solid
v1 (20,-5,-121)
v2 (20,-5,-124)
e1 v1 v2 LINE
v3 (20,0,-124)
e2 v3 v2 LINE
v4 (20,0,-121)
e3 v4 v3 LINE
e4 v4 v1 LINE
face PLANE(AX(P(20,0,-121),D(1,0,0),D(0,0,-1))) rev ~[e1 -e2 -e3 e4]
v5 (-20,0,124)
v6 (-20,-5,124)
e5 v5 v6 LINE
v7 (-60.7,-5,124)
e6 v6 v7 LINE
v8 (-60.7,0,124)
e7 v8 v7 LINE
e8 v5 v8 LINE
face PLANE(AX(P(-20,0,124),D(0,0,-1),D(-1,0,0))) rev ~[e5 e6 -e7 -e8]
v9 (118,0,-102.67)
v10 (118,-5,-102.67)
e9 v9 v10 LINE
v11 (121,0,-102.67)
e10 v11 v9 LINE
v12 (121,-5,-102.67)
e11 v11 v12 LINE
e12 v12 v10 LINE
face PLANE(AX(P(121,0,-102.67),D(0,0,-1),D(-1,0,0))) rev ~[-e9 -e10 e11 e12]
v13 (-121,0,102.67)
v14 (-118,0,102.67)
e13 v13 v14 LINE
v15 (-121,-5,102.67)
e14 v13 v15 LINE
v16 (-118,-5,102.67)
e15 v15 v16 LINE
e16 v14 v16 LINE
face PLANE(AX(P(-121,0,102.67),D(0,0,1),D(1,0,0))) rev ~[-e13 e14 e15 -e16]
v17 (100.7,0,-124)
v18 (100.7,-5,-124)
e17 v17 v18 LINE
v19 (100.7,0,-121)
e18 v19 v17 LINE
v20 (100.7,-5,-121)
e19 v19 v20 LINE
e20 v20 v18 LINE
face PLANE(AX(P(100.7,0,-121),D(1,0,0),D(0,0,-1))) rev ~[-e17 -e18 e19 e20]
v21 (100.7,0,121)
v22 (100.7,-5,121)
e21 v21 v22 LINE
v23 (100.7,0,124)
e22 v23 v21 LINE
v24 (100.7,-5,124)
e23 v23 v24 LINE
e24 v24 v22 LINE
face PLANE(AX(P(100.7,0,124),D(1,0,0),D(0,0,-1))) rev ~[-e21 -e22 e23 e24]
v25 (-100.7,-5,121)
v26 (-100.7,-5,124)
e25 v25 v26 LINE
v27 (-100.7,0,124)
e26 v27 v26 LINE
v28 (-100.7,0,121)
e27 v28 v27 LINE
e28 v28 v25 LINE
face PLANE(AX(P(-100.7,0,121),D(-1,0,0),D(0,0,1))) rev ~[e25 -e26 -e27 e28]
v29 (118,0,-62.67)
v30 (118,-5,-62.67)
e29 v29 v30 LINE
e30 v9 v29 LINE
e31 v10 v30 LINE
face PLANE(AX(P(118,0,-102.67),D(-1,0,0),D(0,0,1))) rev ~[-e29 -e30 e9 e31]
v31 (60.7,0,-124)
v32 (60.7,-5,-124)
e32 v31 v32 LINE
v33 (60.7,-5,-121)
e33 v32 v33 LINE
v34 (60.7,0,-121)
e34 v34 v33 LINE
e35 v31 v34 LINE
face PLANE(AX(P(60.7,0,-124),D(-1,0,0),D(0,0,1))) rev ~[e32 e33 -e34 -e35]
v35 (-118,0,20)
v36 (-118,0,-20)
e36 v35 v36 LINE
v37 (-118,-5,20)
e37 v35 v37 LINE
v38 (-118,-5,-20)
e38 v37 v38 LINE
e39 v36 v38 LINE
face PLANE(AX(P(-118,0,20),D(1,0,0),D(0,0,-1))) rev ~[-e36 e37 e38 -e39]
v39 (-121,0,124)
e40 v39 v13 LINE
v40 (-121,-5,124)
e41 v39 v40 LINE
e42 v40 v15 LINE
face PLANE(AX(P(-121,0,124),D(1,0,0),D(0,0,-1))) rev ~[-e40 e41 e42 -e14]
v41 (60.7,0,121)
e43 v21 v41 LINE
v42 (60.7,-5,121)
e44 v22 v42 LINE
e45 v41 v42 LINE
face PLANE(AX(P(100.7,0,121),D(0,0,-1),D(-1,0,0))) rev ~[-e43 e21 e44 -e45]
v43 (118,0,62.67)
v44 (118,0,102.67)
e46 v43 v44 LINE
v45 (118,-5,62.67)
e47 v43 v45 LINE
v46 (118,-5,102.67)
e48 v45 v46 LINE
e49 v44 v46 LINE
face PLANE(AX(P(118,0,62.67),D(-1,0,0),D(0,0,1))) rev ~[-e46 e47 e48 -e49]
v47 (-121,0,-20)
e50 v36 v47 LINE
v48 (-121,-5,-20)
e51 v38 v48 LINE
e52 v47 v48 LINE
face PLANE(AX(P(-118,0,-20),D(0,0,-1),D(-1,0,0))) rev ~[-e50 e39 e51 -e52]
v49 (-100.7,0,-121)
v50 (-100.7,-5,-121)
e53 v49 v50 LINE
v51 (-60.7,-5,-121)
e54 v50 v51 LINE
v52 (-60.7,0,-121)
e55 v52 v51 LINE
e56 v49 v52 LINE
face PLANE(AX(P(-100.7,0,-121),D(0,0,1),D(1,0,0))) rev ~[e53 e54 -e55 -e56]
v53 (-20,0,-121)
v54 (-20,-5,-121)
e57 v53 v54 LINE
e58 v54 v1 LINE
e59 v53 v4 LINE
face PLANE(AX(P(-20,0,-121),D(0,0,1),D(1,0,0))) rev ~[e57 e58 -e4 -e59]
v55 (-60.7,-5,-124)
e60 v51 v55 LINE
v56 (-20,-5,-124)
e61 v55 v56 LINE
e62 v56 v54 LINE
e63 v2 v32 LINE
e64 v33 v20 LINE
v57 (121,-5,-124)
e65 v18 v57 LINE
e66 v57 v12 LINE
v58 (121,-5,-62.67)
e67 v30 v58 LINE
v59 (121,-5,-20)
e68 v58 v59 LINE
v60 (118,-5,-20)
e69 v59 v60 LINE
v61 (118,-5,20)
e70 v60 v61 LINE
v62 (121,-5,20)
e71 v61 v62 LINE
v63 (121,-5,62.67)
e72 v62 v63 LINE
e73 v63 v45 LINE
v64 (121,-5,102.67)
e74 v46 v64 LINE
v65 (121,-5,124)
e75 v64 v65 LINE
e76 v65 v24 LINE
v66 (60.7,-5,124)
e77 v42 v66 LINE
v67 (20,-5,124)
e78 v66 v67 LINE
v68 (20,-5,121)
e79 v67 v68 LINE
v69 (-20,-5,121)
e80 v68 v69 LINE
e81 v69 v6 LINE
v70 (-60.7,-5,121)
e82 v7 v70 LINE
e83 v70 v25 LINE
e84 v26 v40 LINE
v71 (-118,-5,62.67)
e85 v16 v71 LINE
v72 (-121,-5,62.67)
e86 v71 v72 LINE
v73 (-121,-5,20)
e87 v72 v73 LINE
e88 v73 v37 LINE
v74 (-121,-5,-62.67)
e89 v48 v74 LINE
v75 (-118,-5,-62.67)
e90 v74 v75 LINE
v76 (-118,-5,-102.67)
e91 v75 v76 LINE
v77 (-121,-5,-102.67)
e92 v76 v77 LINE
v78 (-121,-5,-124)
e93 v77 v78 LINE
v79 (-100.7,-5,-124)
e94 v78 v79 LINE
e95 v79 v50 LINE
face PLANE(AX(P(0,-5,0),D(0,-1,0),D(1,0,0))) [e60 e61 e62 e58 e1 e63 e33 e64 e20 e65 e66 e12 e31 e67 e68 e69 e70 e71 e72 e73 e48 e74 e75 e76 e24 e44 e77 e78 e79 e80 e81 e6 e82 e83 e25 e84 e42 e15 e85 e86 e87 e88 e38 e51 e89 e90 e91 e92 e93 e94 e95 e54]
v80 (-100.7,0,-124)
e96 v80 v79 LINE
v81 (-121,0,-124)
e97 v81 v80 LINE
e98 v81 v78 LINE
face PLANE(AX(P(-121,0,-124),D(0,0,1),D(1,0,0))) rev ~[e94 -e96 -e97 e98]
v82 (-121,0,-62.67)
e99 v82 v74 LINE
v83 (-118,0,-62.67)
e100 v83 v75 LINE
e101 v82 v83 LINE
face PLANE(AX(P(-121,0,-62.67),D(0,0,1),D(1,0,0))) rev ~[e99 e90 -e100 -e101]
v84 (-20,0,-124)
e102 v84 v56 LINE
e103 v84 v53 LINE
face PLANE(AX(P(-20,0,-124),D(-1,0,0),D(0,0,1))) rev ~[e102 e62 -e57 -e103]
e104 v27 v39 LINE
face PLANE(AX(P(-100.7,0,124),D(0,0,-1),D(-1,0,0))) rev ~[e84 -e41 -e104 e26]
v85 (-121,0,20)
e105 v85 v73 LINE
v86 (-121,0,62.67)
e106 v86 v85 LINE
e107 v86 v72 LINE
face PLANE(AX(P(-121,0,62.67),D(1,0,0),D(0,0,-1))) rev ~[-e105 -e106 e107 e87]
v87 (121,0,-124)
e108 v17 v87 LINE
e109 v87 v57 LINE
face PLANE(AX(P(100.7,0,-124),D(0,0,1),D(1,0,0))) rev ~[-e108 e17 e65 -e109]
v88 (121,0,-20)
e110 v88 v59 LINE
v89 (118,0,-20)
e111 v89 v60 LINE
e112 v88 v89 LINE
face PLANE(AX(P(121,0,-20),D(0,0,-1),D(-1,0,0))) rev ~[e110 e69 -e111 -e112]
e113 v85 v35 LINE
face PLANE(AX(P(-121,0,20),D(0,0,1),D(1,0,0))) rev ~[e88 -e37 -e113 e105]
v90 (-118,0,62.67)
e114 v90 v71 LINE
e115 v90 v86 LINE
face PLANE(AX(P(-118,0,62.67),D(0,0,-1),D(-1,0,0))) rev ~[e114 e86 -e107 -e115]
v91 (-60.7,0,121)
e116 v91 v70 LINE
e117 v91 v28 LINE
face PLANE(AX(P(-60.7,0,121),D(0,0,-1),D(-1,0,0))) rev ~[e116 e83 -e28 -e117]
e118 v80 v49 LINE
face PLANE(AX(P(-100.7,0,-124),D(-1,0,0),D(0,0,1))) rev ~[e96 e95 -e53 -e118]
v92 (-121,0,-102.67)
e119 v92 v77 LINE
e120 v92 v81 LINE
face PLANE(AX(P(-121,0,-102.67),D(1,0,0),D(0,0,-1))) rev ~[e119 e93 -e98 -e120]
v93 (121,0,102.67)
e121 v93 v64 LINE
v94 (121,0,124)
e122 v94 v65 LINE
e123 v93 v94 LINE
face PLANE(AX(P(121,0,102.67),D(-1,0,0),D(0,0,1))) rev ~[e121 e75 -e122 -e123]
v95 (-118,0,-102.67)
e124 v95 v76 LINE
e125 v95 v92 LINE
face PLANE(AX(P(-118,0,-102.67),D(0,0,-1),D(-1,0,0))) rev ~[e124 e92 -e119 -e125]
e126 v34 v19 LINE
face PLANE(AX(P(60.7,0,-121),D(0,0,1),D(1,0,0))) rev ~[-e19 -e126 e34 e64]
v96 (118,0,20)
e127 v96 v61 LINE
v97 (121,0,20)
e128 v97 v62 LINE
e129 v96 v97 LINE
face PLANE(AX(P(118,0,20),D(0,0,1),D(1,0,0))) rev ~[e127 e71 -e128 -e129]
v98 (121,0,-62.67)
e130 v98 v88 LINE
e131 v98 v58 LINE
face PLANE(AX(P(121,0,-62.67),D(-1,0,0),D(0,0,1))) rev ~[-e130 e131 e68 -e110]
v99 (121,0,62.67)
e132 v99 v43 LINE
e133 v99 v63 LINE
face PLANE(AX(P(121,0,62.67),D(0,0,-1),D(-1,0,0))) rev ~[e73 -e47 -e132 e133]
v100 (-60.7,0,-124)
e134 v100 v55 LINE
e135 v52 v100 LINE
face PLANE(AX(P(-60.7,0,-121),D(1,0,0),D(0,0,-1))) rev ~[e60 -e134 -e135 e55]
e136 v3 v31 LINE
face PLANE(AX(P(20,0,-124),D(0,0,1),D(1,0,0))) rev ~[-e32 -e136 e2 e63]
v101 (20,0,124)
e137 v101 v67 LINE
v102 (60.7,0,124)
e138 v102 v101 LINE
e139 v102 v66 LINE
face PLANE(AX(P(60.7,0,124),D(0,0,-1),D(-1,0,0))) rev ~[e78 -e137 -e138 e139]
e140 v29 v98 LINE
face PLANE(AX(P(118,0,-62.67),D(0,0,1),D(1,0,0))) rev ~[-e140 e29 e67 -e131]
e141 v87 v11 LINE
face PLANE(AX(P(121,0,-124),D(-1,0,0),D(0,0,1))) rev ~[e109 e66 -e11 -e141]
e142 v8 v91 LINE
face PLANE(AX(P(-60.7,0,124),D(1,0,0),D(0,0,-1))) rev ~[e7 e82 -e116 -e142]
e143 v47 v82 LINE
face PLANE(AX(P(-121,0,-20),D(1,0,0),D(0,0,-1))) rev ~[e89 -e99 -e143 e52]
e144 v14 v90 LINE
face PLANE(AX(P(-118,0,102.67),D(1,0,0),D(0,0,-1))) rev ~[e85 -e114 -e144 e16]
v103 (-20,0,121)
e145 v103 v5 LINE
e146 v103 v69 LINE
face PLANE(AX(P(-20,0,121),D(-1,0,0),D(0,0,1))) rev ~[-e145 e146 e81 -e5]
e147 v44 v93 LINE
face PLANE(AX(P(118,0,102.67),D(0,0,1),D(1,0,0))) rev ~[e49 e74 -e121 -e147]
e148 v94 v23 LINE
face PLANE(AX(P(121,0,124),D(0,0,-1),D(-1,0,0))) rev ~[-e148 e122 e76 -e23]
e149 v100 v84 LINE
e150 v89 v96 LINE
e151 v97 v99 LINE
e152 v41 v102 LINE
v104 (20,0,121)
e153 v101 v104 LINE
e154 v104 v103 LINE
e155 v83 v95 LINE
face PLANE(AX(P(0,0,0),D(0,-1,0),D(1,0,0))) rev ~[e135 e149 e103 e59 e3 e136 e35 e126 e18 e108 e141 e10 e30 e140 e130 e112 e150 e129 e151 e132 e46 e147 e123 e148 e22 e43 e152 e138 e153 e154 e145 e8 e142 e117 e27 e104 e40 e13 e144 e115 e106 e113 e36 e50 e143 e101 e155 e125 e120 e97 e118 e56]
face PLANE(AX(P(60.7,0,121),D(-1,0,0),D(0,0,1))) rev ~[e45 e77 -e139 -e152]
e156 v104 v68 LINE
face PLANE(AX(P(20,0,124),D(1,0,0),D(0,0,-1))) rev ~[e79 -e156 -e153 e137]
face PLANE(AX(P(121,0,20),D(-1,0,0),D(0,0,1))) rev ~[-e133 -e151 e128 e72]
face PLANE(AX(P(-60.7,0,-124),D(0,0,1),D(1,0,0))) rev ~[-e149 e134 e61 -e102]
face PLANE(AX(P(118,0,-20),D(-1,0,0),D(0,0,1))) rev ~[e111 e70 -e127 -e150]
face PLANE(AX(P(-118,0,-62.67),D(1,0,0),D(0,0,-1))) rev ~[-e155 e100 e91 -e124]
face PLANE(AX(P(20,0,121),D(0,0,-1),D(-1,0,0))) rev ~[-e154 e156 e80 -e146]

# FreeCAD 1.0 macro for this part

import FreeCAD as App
import Part
import Sketcher

V = App.Vector

doc = App.newDocument("Part")
body = doc.addObject("PartDesign::Body", "Body")

# Sketch on XZ plane
sketch1 = doc.addObject("Sketcher::SketchObject", "Sketch")
body.addObject(sketch1)
sketch1.AttachmentSupport = (doc.XZ_Plane, [""])
sketch1.MapMode = "FlatFace"
sketch1.addGeometry([
    Part.LineSegment(V(100.7, -124, 0), V(121, -124, 0)),  # 0
    Part.LineSegment(V(121, -124, 0), V(121, -102.67, 0)),  # 1
    Part.LineSegment(V(121, -102.67, 0), V(118, -102.67, 0)),  # 2
    Part.LineSegment(V(118, -102.67, 0), V(118, -62.67, 0)),  # 3
    Part.LineSegment(V(118, -62.67, 0), V(121, -62.67, 0)),  # 4
    Part.LineSegment(V(121, -62.67, 0), V(121, -20, 0)),  # 5
    Part.LineSegment(V(121, -20, 0), V(118, -20, 0)),  # 6
    Part.LineSegment(V(118, -20, 0), V(118, 20, 0)),  # 7
    Part.LineSegment(V(118, 20, 0), V(121, 20, 0)),  # 8
    Part.LineSegment(V(121, 20, 0), V(121, 62.67, 0)),  # 9
    Part.LineSegment(V(121, 62.67, 0), V(118, 62.67, 0)),  # 10
    Part.LineSegment(V(118, 62.67, 0), V(118, 102.67, 0)),  # 11
    Part.LineSegment(V(118, 102.67, 0), V(121, 102.67, 0)),  # 12
    Part.LineSegment(V(121, 102.67, 0), V(121, 124, 0)),  # 13
    Part.LineSegment(V(121, 124, 0), V(100.7, 124, 0)),  # 14
    Part.LineSegment(V(100.7, 124, 0), V(100.7, 121, 0)),  # 15
    Part.LineSegment(V(100.7, 121, 0), V(60.7, 121, 0)),  # 16
    Part.LineSegment(V(60.7, 121, 0), V(60.7, 124, 0)),  # 17
    Part.LineSegment(V(60.7, 124, 0), V(20, 124, 0)),  # 18
    Part.LineSegment(V(20, 124, 0), V(20, 121, 0)),  # 19
    Part.LineSegment(V(20, 121, 0), V(-20, 121, 0)),  # 20
    Part.LineSegment(V(-20, 121, 0), V(-20, 124, 0)),  # 21
    Part.LineSegment(V(-20, 124, 0), V(-60.7, 124, 0)),  # 22
    Part.LineSegment(V(-60.7, 124, 0), V(-60.7, 121, 0)),  # 23
    Part.LineSegment(V(-60.7, 121, 0), V(-100.7, 121, 0)),  # 24
    Part.LineSegment(V(-100.7, 121, 0), V(-100.7, 124, 0)),  # 25
    Part.LineSegment(V(-100.7, 124, 0), V(-121, 124, 0)),  # 26
    Part.LineSegment(V(-121, 124, 0), V(-121, 102.67, 0)),  # 27
    Part.LineSegment(V(-121, 102.67, 0), V(-118, 102.67, 0)),  # 28
    Part.LineSegment(V(-118, 102.67, 0), V(-118, 62.67, 0)),  # 29
    Part.LineSegment(V(-118, 62.67, 0), V(-121, 62.67, 0)),  # 30
    Part.LineSegment(V(-121, 62.67, 0), V(-121, 20, 0)),  # 31
    Part.LineSegment(V(-121, 20, 0), V(-118, 20, 0)),  # 32
    Part.LineSegment(V(-118, 20, 0), V(-118, -20, 0)),  # 33
    Part.LineSegment(V(-118, -20, 0), V(-121, -20, 0)),  # 34
    Part.LineSegment(V(-121, -20, 0), V(-121, -62.67, 0)),  # 35
    Part.LineSegment(V(-121, -62.67, 0), V(-118, -62.67, 0)),  # 36
    Part.LineSegment(V(-118, -62.67, 0), V(-118, -102.67, 0)),  # 37
    Part.LineSegment(V(-118, -102.67, 0), V(-121, -102.67, 0)),  # 38
    Part.LineSegment(V(-121, -102.67, 0), V(-121, -124, 0)),  # 39
    Part.LineSegment(V(-121, -124, 0), V(-100.7, -124, 0)),  # 40
    Part.LineSegment(V(-100.7, -124, 0), V(-100.7, -121, 0)),  # 41
    Part.LineSegment(V(-100.7, -121, 0), V(-60.7, -121, 0)),  # 42
    Part.LineSegment(V(-60.7, -121, 0), V(-60.7, -124, 0)),  # 43
    Part.LineSegment(V(-60.7, -124, 0), V(-20, -124, 0)),  # 44
    Part.LineSegment(V(-20, -124, 0), V(-20, -121, 0)),  # 45
    Part.LineSegment(V(-20, -121, 0), V(20, -121, 0)),  # 46
    Part.LineSegment(V(20, -121, 0), V(20, -124, 0)),  # 47
    Part.LineSegment(V(20, -124, 0), V(60.7, -124, 0)),  # 48
    Part.LineSegment(V(60.7, -124, 0), V(60.7, -121, 0)),  # 49
    Part.LineSegment(V(60.7, -121, 0), V(100.7, -121, 0)),  # 50
    Part.LineSegment(V(100.7, -121, 0), V(100.7, -124, 0)),  # 51
], False)
sketch1.addConstraint([
    Sketcher.Constraint("Coincident", 0, 2, 1, 1),
    Sketcher.Constraint("Coincident", 1, 2, 2, 1),
    Sketcher.Constraint("Coincident", 2, 2, 3, 1),
    Sketcher.Constraint("Coincident", 3, 2, 4, 1),
    Sketcher.Constraint("Coincident", 4, 2, 5, 1),
    Sketcher.Constraint("Coincident", 5, 2, 6, 1),
    Sketcher.Constraint("Coincident", 6, 2, 7, 1),
    Sketcher.Constraint("Coincident", 7, 2, 8, 1),
    Sketcher.Constraint("Coincident", 8, 2, 9, 1),
    Sketcher.Constraint("Coincident", 9, 2, 10, 1),
    Sketcher.Constraint("Coincident", 10, 2, 11, 1),
    Sketcher.Constraint("Coincident", 11, 2, 12, 1),
    Sketcher.Constraint("Coincident", 12, 2, 13, 1),
    Sketcher.Constraint("Coincident", 13, 2, 14, 1),
    Sketcher.Constraint("Coincident", 14, 2, 15, 1),
    Sketcher.Constraint("Coincident", 15, 2, 16, 1),
    Sketcher.Constraint("Coincident", 16, 2, 17, 1),
    Sketcher.Constraint("Coincident", 17, 2, 18, 1),
    Sketcher.Constraint("Coincident", 18, 2, 19, 1),
    Sketcher.Constraint("Coincident", 19, 2, 20, 1),
    Sketcher.Constraint("Coincident", 20, 2, 21, 1),
    Sketcher.Constraint("Coincident", 21, 2, 22, 1),
    Sketcher.Constraint("Coincident", 22, 2, 23, 1),
    Sketcher.Constraint("Coincident", 23, 2, 24, 1),
    Sketcher.Constraint("Coincident", 24, 2, 25, 1),
    Sketcher.Constraint("Coincident", 25, 2, 26, 1),
    Sketcher.Constraint("Coincident", 26, 2, 27, 1),
    Sketcher.Constraint("Coincident", 27, 2, 28, 1),
    Sketcher.Constraint("Coincident", 28, 2, 29, 1),
    Sketcher.Constraint("Coincident", 29, 2, 30, 1),
    Sketcher.Constraint("Coincident", 30, 2, 31, 1),
    Sketcher.Constraint("Coincident", 31, 2, 32, 1),
    Sketcher.Constraint("Coincident", 32, 2, 33, 1),
    Sketcher.Constraint("Coincident", 33, 2, 34, 1),
    Sketcher.Constraint("Coincident", 34, 2, 35, 1),
    Sketcher.Constraint("Coincident", 35, 2, 36, 1),
    Sketcher.Constraint("Coincident", 36, 2, 37, 1),
    Sketcher.Constraint("Coincident", 37, 2, 38, 1),
    Sketcher.Constraint("Coincident", 38, 2, 39, 1),
    Sketcher.Constraint("Coincident", 39, 2, 40, 1),
    Sketcher.Constraint("Coincident", 40, 2, 41, 1),
    Sketcher.Constraint("Coincident", 41, 2, 42, 1),
    Sketcher.Constraint("Coincident", 42, 2, 43, 1),
    Sketcher.Constraint("Coincident", 43, 2, 44, 1),
    Sketcher.Constraint("Coincident", 44, 2, 45, 1),
    Sketcher.Constraint("Coincident", 45, 2, 46, 1),
    Sketcher.Constraint("Coincident", 46, 2, 47, 1),
    Sketcher.Constraint("Coincident", 47, 2, 48, 1),
    Sketcher.Constraint("Coincident", 48, 2, 49, 1),
    Sketcher.Constraint("Coincident", 49, 2, 50, 1),
    Sketcher.Constraint("Coincident", 50, 2, 51, 1),
    Sketcher.Constraint("Coincident", 51, 2, 0, 1),
    Sketcher.Constraint("Horizontal", 0),
    Sketcher.Constraint("Vertical", 1),
    Sketcher.Constraint("Horizontal", 2),
    Sketcher.Constraint("Vertical", 3),
    Sketcher.Constraint("Horizontal", 4),
    Sketcher.Constraint("Vertical", 5),
    Sketcher.Constraint("Horizontal", 6),
    Sketcher.Constraint("Vertical", 7),
    Sketcher.Constraint("Horizontal", 8),
    Sketcher.Constraint("Vertical", 9),
    Sketcher.Constraint("Horizontal", 10),
    Sketcher.Constraint("Vertical", 11),
    Sketcher.Constraint("Horizontal", 12),
    Sketcher.Constraint("Vertical", 13),
    Sketcher.Constraint("Horizontal", 14),
    Sketcher.Constraint("Vertical", 15),
    Sketcher.Constraint("Horizontal", 16),
    Sketcher.Constraint("Vertical", 17),
    Sketcher.Constraint("Horizontal", 18),
    Sketcher.Constraint("Vertical", 19),
    Sketcher.Constraint("Horizontal", 20),
    Sketcher.Constraint("Vertical", 21),
    Sketcher.Constraint("Horizontal", 22),
    Sketcher.Constraint("Vertical", 23),
    Sketcher.Constraint("Horizontal", 24),
    Sketcher.Constraint("Vertical", 25),
    Sketcher.Constraint("Horizontal", 26),
    Sketcher.Constraint("Vertical", 27),
    Sketcher.Constraint("Horizontal", 28),
    Sketcher.Constraint("Vertical", 29),
    Sketcher.Constraint("Horizontal", 30),
    Sketcher.Constraint("Vertical", 31),
    Sketcher.Constraint("Horizontal", 32),
    Sketcher.Constraint("Vertical", 33),
    Sketcher.Constraint("Horizontal", 34),
    Sketcher.Constraint("Vertical", 35),
    Sketcher.Constraint("Horizontal", 36),
    Sketcher.Constraint("Vertical", 37),
    Sketcher.Constraint("Horizontal", 38),
    Sketcher.Constraint("Vertical", 39),
    Sketcher.Constraint("Horizontal", 40),
    Sketcher.Constraint("Vertical", 41),
    Sketcher.Constraint("Horizontal", 42),
    Sketcher.Constraint("Vertical", 43),
    Sketcher.Constraint("Horizontal", 44),
    Sketcher.Constraint("Vertical", 45),
    Sketcher.Constraint("Horizontal", 46),
    Sketcher.Constraint("Vertical", 47),
    Sketcher.Constraint("Horizontal", 48),
    Sketcher.Constraint("Vertical", 49),
    Sketcher.Constraint("Horizontal", 50),
    Sketcher.Constraint("Vertical", 51),
    Sketcher.Constraint("Symmetric", 0, 2, 26, 2, -1, 1),
    Sketcher.Constraint("Symmetric", 2, 2, 28, 2, -1, 1),
    Sketcher.Constraint("Symmetric", 4, 2, 30, 2, -1, 1),
    Sketcher.Constraint("Symmetric", 6, 2, 32, 2, -1, 1),
    Sketcher.Constraint("Symmetric", 8, 2, 34, 2, -1, 1),
    Sketcher.Constraint("Symmetric", 10, 2, 36, 2, -1, 1),
    Sketcher.Constraint("Symmetric", 12, 2, 38, 2, -1, 1),
    Sketcher.Constraint("Symmetric", 14, 2, 40, 2, -1, 1),
    Sketcher.Constraint("Symmetric", 16, 2, 42, 2, -1, 1),
    Sketcher.Constraint("Symmetric", 18, 2, 44, 2, -1, 1),
    Sketcher.Constraint("Symmetric", 20, 2, 46, 2, -1, 1),
    Sketcher.Constraint("Symmetric", 22, 2, 48, 2, -1, 1),
    Sketcher.Constraint("Symmetric", 24, 2, 50, 2, -1, 1),
    Sketcher.Constraint("Symmetric", 18, 2, 21, 2, -2),
    Sketcher.Constraint("Symmetric", 16, 2, 23, 2, -2),
    Sketcher.Constraint("Symmetric", 14, 2, 25, 2, -2),
    Sketcher.Constraint("Symmetric", 12, 2, 27, 2, -2),
    Sketcher.Constraint("Symmetric", 10, 2, 29, 2, -2),
    Sketcher.Constraint("Symmetric", 8, 2, 31, 2, -2),
    Sketcher.Constraint("Horizontal", 14, 2, 17, 2),
    Sketcher.Constraint("Horizontal", 16, 2, 19, 2),
    Sketcher.Constraint("Vertical", 1, 2, 4, 2),
    Sketcher.Constraint("Vertical", 3, 2, 6, 2),
    Sketcher.Constraint("Equal", 16, 20),
    Sketcher.Constraint("Equal", 50, 3),
    Sketcher.Constraint("Equal", 3, 7),
    Sketcher.Constraint("Equal", 38, 15),
    Sketcher.Constraint("DistanceX", 2, 2, 2, 1, 3.0),
    Sketcher.Constraint("DistanceX", 16, 2, 16, 1, 40.0),
    Sketcher.Constraint("DistanceX", 0, 1, 0, 2, 20.3),
    Sketcher.Constraint("DistanceX", 18, 2, 18, 1, 40.7),
    Sketcher.Constraint("DistanceY", 0, 2, -1, 1, 124.0),
    Sketcher.Constraint("DistanceY", 1, 1, 1, 2, 21.33),
])
pad1 = doc.addObject("PartDesign::Pad", "Pad")
body.addObject(pad1)
pad1.Profile = sketch1
pad1.Length = 5

doc.recompute()
